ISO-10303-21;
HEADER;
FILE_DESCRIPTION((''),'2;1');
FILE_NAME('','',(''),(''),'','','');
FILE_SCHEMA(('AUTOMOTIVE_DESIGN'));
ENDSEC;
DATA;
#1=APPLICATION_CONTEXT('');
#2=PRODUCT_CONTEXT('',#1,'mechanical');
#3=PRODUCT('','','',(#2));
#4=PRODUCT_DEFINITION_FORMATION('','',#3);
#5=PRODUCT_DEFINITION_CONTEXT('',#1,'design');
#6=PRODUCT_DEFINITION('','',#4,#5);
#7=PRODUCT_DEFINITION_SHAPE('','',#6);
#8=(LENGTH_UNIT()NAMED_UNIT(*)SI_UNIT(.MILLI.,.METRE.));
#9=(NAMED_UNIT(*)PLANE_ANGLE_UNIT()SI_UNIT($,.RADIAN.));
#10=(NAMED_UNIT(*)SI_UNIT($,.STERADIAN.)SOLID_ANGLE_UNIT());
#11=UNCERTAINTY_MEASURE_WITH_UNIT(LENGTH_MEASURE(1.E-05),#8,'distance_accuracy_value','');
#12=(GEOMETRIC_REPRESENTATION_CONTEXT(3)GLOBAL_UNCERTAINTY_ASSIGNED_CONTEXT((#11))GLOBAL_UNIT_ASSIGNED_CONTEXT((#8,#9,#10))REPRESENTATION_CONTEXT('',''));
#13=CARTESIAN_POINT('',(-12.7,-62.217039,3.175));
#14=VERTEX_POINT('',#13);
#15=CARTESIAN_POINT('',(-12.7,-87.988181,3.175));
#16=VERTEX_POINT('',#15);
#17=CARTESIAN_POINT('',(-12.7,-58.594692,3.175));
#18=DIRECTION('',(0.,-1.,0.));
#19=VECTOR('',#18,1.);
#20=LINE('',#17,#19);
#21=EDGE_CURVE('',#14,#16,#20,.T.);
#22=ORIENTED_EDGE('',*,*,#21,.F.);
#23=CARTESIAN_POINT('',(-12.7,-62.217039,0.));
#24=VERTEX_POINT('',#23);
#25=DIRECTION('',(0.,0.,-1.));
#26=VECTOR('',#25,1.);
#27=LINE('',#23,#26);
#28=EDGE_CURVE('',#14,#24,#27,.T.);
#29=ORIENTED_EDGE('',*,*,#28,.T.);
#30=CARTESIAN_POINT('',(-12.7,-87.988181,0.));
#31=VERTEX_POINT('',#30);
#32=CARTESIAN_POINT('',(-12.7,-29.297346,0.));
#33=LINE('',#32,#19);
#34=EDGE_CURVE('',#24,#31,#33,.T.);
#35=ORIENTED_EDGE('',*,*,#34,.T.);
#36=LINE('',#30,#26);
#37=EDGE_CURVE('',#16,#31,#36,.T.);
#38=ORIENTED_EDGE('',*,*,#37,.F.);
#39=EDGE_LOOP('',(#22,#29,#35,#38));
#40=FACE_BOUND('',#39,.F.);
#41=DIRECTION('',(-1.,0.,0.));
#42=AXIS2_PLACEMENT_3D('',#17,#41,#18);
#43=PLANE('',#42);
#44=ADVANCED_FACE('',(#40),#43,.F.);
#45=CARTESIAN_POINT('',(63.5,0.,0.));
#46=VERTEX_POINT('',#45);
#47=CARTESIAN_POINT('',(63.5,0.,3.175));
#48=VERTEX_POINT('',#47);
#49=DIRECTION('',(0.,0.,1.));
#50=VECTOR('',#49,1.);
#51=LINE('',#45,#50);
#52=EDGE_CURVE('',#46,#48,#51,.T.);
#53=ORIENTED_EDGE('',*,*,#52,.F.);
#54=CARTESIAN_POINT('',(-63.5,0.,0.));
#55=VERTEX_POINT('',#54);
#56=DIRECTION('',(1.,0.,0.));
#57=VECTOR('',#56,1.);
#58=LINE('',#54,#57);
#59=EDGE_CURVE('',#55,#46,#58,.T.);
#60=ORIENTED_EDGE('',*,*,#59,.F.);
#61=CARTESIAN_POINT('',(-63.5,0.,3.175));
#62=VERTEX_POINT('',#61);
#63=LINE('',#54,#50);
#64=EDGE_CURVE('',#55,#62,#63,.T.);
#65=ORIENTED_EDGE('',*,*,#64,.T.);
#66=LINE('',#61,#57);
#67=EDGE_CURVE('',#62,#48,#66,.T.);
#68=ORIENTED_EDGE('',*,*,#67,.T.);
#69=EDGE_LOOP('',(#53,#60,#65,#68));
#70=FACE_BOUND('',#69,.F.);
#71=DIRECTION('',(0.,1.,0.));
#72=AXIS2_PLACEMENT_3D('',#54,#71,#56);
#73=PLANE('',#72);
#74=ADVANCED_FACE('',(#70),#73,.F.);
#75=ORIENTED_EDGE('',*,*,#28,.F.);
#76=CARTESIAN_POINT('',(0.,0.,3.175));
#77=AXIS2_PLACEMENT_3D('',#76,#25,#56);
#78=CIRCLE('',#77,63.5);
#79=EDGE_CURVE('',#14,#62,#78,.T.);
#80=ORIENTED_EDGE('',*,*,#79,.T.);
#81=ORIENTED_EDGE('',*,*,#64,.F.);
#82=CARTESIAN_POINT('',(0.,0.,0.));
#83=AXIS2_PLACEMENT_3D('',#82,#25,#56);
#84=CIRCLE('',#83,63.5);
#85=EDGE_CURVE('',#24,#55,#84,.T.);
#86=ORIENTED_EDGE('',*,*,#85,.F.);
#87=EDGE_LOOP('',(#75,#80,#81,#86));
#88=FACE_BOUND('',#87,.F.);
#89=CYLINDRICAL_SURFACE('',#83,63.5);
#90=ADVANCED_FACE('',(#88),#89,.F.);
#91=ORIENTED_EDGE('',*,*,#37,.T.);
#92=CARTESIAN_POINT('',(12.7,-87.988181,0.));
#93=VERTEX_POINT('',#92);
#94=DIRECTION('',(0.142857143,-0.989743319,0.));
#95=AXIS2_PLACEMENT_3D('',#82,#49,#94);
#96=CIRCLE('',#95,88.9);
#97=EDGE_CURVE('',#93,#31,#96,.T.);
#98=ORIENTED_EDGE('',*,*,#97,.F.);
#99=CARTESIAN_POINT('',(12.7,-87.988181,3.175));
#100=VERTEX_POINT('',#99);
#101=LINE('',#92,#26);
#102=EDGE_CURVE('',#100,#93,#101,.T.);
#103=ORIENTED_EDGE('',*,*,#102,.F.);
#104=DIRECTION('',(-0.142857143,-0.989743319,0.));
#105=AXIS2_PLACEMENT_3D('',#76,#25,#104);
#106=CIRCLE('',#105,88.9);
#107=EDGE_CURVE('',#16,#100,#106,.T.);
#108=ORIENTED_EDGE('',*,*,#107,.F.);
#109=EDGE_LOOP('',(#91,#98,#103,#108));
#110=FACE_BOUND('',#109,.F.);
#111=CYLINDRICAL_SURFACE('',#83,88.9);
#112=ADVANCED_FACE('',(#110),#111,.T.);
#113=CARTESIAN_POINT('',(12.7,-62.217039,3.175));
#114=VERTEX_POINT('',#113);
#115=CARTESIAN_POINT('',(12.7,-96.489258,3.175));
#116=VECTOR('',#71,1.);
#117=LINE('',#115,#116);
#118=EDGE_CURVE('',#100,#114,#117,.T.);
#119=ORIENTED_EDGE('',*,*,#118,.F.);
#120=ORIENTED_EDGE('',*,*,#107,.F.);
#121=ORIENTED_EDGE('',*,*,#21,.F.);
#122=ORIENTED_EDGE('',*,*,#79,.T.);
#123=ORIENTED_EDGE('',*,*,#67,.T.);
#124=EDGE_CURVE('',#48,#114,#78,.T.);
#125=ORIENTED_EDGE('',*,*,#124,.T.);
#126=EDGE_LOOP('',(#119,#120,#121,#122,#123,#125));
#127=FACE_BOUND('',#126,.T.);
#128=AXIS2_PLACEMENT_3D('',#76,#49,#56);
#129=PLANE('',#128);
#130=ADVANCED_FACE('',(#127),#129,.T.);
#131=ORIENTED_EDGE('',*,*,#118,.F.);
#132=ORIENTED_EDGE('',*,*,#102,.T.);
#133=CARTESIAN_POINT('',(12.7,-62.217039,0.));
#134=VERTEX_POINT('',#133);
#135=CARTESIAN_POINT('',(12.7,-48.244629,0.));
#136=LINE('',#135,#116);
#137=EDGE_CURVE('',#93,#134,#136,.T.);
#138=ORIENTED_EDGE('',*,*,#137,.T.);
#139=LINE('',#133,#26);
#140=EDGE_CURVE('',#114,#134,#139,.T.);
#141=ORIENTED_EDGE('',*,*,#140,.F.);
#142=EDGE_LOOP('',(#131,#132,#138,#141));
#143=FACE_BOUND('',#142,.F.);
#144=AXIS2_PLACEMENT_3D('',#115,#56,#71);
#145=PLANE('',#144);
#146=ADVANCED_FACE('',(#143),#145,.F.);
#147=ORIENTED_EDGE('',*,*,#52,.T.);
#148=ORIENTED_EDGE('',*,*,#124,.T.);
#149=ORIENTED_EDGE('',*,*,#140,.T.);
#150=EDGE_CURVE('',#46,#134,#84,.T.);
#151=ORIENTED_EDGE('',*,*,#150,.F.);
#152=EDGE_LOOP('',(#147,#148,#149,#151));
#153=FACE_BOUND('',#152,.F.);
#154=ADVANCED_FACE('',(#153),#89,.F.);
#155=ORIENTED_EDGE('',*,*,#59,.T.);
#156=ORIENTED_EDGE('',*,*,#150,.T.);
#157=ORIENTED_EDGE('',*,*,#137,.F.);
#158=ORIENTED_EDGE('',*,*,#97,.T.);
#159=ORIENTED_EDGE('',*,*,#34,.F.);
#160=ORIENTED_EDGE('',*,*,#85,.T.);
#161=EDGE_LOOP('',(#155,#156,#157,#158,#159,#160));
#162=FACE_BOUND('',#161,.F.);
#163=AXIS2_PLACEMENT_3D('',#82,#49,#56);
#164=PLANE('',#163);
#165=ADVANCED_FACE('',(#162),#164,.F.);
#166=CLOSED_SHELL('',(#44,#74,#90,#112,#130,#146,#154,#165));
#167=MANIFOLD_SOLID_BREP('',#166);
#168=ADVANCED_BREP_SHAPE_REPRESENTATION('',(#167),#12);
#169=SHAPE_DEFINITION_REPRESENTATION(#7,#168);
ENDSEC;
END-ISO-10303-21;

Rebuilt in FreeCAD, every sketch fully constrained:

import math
import FreeCAD as App
import Part
import Sketcher
Q = App.Units.Quantity


def add_polygon(sketch, points):
    """Adds a closed chain of lines whose ends are joined by coincident constraints."""
    first, n = sketch.GeometryCount, len(points)
    for a, b in zip(points, points[1:] + points[:1]):
        sketch.addGeometry(Part.LineSegment(App.Vector(*a, 0), App.Vector(*b, 0)), False)
    for i in range(n):
        sketch.addConstraint(Sketcher.Constraint("Coincident", first + i, 2, first + (i + 1) % n, 1))

doc = App.newDocument("Part")
body = doc.addObject("PartDesign::Body", "Body")

sketch1 = body.newObject("Sketcher::SketchObject", "Sketch")
sketch1.AttachmentSupport = (doc.getObject("XY_Plane"), [""])
sketch1.MapMode = "FlatFace"
sketch1.addGeometry(Part.Circle(App.Vector(0, 0, 0), App.Vector(0, 0, 1), 88.9), False)
sketch1.addGeometry(Part.ArcOfCircle(Part.Circle(App.Vector(0, 0, 0), App.Vector(0, 0, 1), 63.5), math.radians(180), math.radians(360)), False)
sketch1.addGeometry(Part.LineSegment(App.Vector(-63.5, 0, 0), App.Vector(63.5, 0, 0)), False)
sketch1.addConstraint(Sketcher.Constraint("Coincident", 1, 1, 2, 1))
sketch1.addConstraint(Sketcher.Constraint("Coincident", 2, 2, 1, 2))
sketch1.addConstraint(Sketcher.Constraint("Horizontal", 2))
sketch1.addConstraint(Sketcher.Constraint("Coincident", 0, 3, -1, 1))
sketch1.addConstraint(Sketcher.Constraint("Coincident", 1, 3, -1, 1))
sketch1.addConstraint(Sketcher.Constraint("PointOnObject", 1, 1, -1))
sketch1.addConstraint(Sketcher.Constraint("Diameter", 0, Q("7 in")))
sketch1.addConstraint(Sketcher.Constraint("Radius", 1, Q("2.5 in")))
pad1 = body.newObject("PartDesign::Pad", "Pad")
pad1.Profile = sketch1
pad1.Length = Q("0.125 in")

sketch2 = body.newObject("Sketcher::SketchObject", "Sketch001")
sketch2.AttachmentSupport = (doc.getObject("XY_Plane"), [""])
sketch2.MapMode = "FlatFace"
sketch2.AttachmentOffset = App.Placement(App.Vector(0, 0, 0.125 * 25.4), App.Rotation())
add_polygon(sketch2, [(12.7, -58.594692), (-12.7, -58.594692), (-12.7, -96.489258), (12.7, -96.489258)])
sketch2.addConstraint(Sketcher.Constraint("Horizontal", 0))
sketch2.addConstraint(Sketcher.Constraint("Vertical", 1))
sketch2.addConstraint(Sketcher.Constraint("Horizontal", 2))
sketch2.addConstraint(Sketcher.Constraint("Vertical", 3))
sketch2.addConstraint(Sketcher.Constraint("DistanceX", 0, 2, 0, 1, Q("1 in")))
sketch2.addConstraint(Sketcher.Constraint("DistanceX", 0, 2, -1, 1, Q("0.5 in")))
sketch2.addConstraint(Sketcher.Constraint("DistanceY", 1, 2, 1, 1, Q("37.894566 mm")))
sketch2.addConstraint(Sketcher.Constraint("DistanceY", 1, 2, -1, 1, Q("96.489258 mm")))
pocket1 = body.newObject("PartDesign::Pocket", "Pocket")
pocket1.Profile = sketch2
pocket1.Length = Q("0.25 in")

doc.recompute()
